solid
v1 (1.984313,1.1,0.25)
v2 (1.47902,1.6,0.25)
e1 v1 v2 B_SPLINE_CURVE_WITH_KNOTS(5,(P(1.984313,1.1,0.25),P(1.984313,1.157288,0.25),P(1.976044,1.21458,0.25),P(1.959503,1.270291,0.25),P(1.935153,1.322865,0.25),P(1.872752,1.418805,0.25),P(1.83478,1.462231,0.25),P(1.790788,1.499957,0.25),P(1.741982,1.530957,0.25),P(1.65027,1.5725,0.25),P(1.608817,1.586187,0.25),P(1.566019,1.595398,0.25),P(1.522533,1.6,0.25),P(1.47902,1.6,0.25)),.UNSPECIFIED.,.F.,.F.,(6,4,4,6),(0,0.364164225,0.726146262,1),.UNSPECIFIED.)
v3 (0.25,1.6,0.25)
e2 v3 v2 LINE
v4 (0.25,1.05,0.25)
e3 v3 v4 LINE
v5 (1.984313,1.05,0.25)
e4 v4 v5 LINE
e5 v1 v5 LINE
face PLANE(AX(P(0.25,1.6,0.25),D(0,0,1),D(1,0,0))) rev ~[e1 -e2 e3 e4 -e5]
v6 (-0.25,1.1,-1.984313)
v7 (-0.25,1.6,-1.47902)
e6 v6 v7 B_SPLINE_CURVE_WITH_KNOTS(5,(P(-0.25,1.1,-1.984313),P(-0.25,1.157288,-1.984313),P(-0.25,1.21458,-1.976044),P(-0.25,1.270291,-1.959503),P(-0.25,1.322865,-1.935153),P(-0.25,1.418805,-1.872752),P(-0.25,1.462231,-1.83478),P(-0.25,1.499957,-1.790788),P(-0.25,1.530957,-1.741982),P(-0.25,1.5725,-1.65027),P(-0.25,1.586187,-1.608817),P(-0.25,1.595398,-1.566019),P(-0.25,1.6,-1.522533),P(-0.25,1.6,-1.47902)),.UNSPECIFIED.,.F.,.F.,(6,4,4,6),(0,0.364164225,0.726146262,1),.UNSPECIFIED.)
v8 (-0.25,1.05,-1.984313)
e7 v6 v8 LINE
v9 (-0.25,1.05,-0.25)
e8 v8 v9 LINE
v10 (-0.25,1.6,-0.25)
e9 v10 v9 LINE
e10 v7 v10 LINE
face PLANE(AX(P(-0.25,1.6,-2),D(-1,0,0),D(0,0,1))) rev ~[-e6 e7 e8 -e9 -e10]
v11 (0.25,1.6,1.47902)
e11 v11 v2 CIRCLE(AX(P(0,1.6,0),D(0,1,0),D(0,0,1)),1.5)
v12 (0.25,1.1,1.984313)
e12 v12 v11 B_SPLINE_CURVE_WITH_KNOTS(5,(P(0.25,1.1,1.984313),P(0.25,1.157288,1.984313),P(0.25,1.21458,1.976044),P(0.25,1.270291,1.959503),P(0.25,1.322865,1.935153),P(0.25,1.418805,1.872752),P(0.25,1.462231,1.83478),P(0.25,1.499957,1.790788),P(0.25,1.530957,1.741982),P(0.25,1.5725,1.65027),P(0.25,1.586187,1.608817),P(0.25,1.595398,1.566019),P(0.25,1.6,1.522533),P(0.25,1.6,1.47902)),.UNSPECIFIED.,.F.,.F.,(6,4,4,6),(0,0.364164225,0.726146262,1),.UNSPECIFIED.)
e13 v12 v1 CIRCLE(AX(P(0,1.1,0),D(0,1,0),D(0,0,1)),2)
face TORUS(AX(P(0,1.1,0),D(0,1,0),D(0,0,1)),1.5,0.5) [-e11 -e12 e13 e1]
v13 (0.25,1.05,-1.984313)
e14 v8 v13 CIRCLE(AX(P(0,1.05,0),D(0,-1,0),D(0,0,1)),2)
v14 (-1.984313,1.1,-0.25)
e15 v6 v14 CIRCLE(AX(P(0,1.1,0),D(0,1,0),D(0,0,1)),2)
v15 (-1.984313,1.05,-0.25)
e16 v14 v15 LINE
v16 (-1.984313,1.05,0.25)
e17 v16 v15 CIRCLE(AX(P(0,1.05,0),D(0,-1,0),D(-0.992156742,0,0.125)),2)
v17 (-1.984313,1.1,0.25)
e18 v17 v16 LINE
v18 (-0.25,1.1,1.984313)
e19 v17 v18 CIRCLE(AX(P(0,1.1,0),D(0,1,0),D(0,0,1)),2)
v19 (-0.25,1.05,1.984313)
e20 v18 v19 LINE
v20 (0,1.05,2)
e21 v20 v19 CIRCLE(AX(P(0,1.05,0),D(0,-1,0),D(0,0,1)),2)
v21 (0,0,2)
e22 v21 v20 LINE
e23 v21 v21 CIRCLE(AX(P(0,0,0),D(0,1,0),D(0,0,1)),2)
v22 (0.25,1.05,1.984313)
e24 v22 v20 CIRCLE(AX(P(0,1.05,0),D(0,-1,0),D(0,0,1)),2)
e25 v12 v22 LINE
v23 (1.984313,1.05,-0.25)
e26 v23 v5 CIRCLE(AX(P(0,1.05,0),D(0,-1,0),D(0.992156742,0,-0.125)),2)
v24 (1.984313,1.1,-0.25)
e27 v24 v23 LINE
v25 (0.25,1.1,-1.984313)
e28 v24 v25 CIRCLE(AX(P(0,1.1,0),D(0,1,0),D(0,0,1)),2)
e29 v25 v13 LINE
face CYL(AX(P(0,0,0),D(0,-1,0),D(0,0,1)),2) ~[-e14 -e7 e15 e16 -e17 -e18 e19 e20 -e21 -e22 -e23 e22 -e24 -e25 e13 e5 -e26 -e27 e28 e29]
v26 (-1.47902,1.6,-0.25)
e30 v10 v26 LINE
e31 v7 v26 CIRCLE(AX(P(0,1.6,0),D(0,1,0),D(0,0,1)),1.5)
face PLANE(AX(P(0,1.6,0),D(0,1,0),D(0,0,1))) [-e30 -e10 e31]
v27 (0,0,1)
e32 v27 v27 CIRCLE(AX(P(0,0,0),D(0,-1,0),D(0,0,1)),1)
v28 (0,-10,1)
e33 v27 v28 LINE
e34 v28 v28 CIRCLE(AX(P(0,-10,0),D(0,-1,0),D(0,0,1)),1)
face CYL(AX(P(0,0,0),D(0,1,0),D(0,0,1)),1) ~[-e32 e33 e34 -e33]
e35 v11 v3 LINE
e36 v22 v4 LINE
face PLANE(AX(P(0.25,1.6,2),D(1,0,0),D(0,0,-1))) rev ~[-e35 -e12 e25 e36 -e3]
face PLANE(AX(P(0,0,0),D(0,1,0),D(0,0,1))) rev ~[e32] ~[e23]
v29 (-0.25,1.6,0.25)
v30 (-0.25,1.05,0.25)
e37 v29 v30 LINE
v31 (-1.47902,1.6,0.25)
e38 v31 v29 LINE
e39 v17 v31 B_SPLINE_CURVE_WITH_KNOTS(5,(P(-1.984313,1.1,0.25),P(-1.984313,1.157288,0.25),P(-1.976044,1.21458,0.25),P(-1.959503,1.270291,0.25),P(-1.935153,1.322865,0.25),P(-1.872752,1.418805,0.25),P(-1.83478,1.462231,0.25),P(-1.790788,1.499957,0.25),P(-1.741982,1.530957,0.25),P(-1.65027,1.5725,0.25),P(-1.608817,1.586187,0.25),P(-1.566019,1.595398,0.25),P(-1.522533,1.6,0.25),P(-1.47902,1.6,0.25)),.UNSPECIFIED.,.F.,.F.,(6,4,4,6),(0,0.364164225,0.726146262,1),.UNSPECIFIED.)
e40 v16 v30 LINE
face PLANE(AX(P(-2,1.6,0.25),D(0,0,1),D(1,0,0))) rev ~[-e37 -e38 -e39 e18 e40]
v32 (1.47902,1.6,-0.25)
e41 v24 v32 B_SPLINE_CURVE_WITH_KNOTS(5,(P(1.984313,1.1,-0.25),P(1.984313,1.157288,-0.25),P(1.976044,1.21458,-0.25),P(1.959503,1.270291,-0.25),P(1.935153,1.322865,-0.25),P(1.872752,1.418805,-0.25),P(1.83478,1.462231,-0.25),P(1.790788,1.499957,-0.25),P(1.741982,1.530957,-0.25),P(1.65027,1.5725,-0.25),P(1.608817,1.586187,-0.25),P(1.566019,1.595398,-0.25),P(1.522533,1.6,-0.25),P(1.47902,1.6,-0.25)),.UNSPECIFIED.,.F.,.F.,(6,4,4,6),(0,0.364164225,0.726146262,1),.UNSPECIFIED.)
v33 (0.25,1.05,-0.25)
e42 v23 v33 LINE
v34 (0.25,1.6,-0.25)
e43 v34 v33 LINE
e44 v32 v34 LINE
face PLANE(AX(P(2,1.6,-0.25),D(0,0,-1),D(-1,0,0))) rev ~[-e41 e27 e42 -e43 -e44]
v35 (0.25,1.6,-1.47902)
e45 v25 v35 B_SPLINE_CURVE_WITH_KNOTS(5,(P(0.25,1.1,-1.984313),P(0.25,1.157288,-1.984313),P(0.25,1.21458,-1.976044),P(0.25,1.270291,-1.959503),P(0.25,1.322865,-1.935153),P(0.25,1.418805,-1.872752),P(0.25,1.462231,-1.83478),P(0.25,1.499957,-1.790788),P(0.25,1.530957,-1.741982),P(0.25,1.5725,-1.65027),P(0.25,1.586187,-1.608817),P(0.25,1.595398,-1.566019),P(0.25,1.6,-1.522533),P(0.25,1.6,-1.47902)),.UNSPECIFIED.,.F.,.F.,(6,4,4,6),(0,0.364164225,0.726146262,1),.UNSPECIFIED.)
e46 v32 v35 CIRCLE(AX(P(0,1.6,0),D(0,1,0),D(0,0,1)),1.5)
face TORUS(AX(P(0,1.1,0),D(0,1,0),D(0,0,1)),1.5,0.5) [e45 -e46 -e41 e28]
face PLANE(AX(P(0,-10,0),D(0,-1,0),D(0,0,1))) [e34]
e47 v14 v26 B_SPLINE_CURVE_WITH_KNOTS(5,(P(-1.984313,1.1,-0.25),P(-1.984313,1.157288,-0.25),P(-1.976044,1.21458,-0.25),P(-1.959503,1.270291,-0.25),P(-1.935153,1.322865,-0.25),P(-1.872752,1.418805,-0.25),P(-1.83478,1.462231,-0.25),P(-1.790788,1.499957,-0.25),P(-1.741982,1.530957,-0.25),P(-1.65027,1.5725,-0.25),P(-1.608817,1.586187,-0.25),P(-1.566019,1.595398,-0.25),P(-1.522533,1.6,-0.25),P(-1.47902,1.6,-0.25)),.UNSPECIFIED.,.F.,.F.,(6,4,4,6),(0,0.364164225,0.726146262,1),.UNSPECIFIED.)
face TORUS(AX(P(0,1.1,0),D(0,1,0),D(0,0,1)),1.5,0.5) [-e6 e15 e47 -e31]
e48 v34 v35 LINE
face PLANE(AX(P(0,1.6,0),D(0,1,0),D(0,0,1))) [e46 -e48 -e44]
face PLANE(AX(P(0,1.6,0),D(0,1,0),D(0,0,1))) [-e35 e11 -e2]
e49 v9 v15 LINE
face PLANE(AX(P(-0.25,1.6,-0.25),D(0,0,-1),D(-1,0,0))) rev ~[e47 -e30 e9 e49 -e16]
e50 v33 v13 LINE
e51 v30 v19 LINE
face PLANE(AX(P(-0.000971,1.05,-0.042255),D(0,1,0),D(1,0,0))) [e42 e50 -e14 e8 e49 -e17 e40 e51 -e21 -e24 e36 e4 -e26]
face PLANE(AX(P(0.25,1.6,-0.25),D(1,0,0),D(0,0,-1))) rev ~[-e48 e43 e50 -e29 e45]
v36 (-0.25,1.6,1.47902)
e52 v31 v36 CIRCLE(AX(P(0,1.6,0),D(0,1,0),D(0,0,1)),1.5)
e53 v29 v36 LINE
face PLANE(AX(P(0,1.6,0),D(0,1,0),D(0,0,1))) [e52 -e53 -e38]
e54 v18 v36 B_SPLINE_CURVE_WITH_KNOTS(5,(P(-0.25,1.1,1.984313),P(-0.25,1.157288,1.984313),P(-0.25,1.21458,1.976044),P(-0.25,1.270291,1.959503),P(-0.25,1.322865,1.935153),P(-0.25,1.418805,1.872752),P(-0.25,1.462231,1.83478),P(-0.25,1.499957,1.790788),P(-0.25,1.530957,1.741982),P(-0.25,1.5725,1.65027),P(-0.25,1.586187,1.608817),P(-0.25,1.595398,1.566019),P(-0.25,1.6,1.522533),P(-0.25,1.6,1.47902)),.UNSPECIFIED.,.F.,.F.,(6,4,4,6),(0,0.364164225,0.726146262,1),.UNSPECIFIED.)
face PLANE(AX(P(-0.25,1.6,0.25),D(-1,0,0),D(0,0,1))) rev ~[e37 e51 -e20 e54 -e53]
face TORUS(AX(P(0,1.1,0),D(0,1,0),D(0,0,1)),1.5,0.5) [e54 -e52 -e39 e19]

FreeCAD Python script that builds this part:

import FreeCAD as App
import Part
import Sketcher

V = App.Vector
Q = App.Units.Quantity


def edges_at(feature, points):
    """Names of the edges that pass closest to the given points."""
    edges = feature.Shape.Edges
    near = lambda p: min(range(len(edges)), key=lambda i: edges[i].distToShape(Part.Vertex(*p))[0])
    return sorted({f"Edge{near(p) + 1}" for p in points})

doc = App.newDocument("Part")
body = doc.addObject("PartDesign::Body", "Body")

# Sketch on XZ plane
sketch1 = body.newObject("Sketcher::SketchObject", "Sketch")
sketch1.AttachmentSupport = (doc.getObject("XZ_Plane"), [""])
sketch1.MapMode = "FlatFace"
sketch1.addGeometry(Part.Circle(V(0, 0, 0), V(0, 0, 1), 2), False)
sketch1.addConstraint([
    Sketcher.Constraint("Coincident", 0, 3, -1, 1),
    Sketcher.Constraint("Diameter", 0, Q("4 mm")),
])
pad1 = body.newObject("PartDesign::Pad", "Pad")
pad1.Profile = sketch1
pad1.Length = 1.6
pad1.Reversed = True

# Sketch on XZ plane
sketch2 = body.newObject("Sketcher::SketchObject", "Sketch001")
sketch2.AttachmentSupport = (doc.getObject("XZ_Plane"), [""])
sketch2.MapMode = "FlatFace"
sketch2.addGeometry(Part.Circle(V(0, 0, 0), V(0, 0, 1), 1), False)
sketch2.addConstraint([
    Sketcher.Constraint("Coincident", 0, 3, -1, 1),
    Sketcher.Constraint("Diameter", 0, Q("2 mm")),
])
pad2 = body.newObject("PartDesign::Pad", "Pad001")
pad2.Profile = sketch2
pad2.Length = 10
doc.recompute()

fillet = body.newObject("PartDesign::Fillet", "Fillet")
fillet.Base = (pad2, edges_at(pad2, [(0, 1.6, -2)]))
fillet.Radius = 0.5

# Sketch on XZ plane
sketch3 = body.newObject("Sketcher::SketchObject", "Sketch002")
sketch3.AttachmentSupport = (doc.getObject("XZ_Plane"), [""])
sketch3.MapMode = "FlatFace"
sketch3.AttachmentOffset = App.Placement(V(0, 0, -1.6), App.Rotation())
sketch3.addGeometry([
    Part.LineSegment(V(-2, 0.25, 0), V(-0.25, 0.25, 0)),  # 0
    Part.LineSegment(V(-0.25, 0.25, 0), V(-0.25, 2, 0)),  # 1
    Part.LineSegment(V(-0.25, 2, 0), V(0.25, 2, 0)),  # 2
    Part.LineSegment(V(0.25, 2, 0), V(0.25, 0.25, 0)),  # 3
    Part.LineSegment(V(0.25, 0.25, 0), V(2, 0.25, 0)),  # 4
    Part.LineSegment(V(2, 0.25, 0), V(2, -0.25, 0)),  # 5
    Part.LineSegment(V(2, -0.25, 0), V(0.25, -0.25, 0)),  # 6
    Part.LineSegment(V(0.25, -0.25, 0), V(0.25, -2, 0)),  # 7
    Part.LineSegment(V(0.25, -2, 0), V(-0.07, -2.3, 0)),  # 8
    Part.LineSegment(V(-0.07, -2.3, 0), V(-0.25, -2, 0)),  # 9
    Part.LineSegment(V(-0.25, -2, 0), V(-0.25, -0.25, 0)),  # 10
    Part.LineSegment(V(-0.25, -0.25, 0), V(-2, -0.25, 0)),  # 11
    Part.LineSegment(V(-2, -0.25, 0), V(-2, 0.25, 0)),  # 12
], False)
sketch3.addConstraint([
    Sketcher.Constraint("Coincident", 0, 2, 1, 1),
    Sketcher.Constraint("Coincident", 1, 2, 2, 1),
    Sketcher.Constraint("Coincident", 2, 2, 3, 1),
    Sketcher.Constraint("Coincident", 3, 2, 4, 1),
    Sketcher.Constraint("Coincident", 4, 2, 5, 1),
    Sketcher.Constraint("Coincident", 5, 2, 6, 1),
    Sketcher.Constraint("Coincident", 6, 2, 7, 1),
    Sketcher.Constraint("Coincident", 7, 2, 8, 1),
    Sketcher.Constraint("Coincident", 8, 2, 9, 1),
    Sketcher.Constraint("Coincident", 9, 2, 10, 1),
    Sketcher.Constraint("Coincident", 10, 2, 11, 1),
    Sketcher.Constraint("Coincident", 11, 2, 12, 1),
    Sketcher.Constraint("Coincident", 12, 2, 0, 1),
    Sketcher.Constraint("Horizontal", 0),
    Sketcher.Constraint("Vertical", 1),
    Sketcher.Constraint("Horizontal", 2),
    Sketcher.Constraint("Vertical", 3),
    Sketcher.Constraint("Horizontal", 4),
    Sketcher.Constraint("Vertical", 5),
    Sketcher.Constraint("Horizontal", 6),
    Sketcher.Constraint("Vertical", 7),
    Sketcher.Constraint("Vertical", 10),
    Sketcher.Constraint("Horizontal", 11),
    Sketcher.Constraint("Vertical", 12),
    Sketcher.Constraint("Symmetric", 0, 2, 6, 2, -1, 1),
    Sketcher.Constraint("Symmetric", 2, 2, 9, 2, -1, 1),
    Sketcher.Constraint("Symmetric", 4, 2, 11, 2, -1, 1),
    Sketcher.Constraint("Symmetric", 0, 2, 3, 2, -2),
    Sketcher.Constraint("Horizontal", 7, 2, 9, 2),
    Sketcher.Constraint("Equal", 11, 1),
    Sketcher.Constraint("Equal", 2, 5),
    Sketcher.Constraint("DistanceX", 2, 1, 2, 2, Q("0.5 mm")),
    Sketcher.Constraint("DistanceY", -1, 1, 1, 2, Q("2 mm")),
    Sketcher.Constraint("Distance", 8, Q("0.435811 mm")),
    Sketcher.Constraint("Distance", 9, Q("0.349671 mm")),
])
pocket1 = body.newObject("PartDesign::Pocket", "Pocket")
pocket1.Profile = sketch3
pocket1.Length = 0.55
pocket1.Reversed = True

doc.recompute()
